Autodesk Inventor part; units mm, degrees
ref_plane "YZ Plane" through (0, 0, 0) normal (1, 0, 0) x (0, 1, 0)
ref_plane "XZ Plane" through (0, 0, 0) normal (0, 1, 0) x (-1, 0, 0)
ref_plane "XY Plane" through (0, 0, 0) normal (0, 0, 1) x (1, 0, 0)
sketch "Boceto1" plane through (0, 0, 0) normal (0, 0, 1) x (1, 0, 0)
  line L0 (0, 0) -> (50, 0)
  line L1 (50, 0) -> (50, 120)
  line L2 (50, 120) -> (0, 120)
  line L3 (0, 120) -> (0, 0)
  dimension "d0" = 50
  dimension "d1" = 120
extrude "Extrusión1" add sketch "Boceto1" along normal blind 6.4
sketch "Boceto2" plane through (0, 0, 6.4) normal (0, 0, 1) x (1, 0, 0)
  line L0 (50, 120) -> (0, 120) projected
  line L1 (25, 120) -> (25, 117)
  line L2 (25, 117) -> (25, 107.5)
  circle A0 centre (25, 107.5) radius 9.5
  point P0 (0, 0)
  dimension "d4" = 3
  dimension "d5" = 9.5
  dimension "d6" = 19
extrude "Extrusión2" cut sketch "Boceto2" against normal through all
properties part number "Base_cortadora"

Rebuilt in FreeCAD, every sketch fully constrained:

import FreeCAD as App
import Part
import Sketcher

V = App.Vector

doc = App.newDocument("Part")
params = doc.addObject("Spreadsheet::Sheet", "Params")
for row, (alias, value) in enumerate([
    ("sketch1_width", "50 mm"),
    ("sketch1_height", "120 mm"),
    ("pad1_length", "6.4 mm"),
    ("sketch2_diameter", "19 mm"),
], start=1):
    params.set(f"A{row}", alias)
    params.set(f"B{row}", "=" + value)
    params.setAlias(f"B{row}", alias)

body = doc.addObject("PartDesign::Body", "Body")

# Sketch on XY plane
sketch1 = body.newObject("Sketcher::SketchObject", "Sketch")
sketch1.AttachmentSupport = (doc.getObject("XY_Plane"), [""])
sketch1.MapMode = "FlatFace"
sketch1.addGeometry([
    Part.LineSegment(V(0, 120, 0), V(0, 0, 0)),
    Part.LineSegment(V(0, 0, 0), V(50, 0, 0)),
    Part.LineSegment(V(50, 0, 0), V(50, 120, 0)),
    Part.LineSegment(V(50, 120, 0), V(0, 120, 0)),
], False)
sketch1.addConstraint([
    Sketcher.Constraint("Coincident", 0, 2, 1, 1),
    Sketcher.Constraint("Coincident", 1, 2, 2, 1),
    Sketcher.Constraint("Coincident", 2, 2, 3, 1),
    Sketcher.Constraint("Coincident", 3, 2, 0, 1),
    Sketcher.Constraint("Vertical", 0),
    Sketcher.Constraint("Horizontal", 1),
    Sketcher.Constraint("Vertical", 2),
    Sketcher.Constraint("Horizontal", 3),
    Sketcher.Constraint("Coincident", 0, 2, -1, 1),
    Sketcher.Constraint("DistanceX", 1, 1, 1, 2, 50.0),
    Sketcher.Constraint("DistanceY", 0, 2, 0, 1, 120.0),
])
sketch1.setExpression("Constraints[9]", "Params.sketch1_width")
sketch1.setExpression("Constraints[10]", "Params.sketch1_height")
pad1 = body.newObject("PartDesign::Pad", "Pad")
pad1.Profile = sketch1
pad1.setExpression("Length", "Params.pad1_length")

# Sketch on XY plane
sketch2 = body.newObject("Sketcher::SketchObject", "Sketch001")
sketch2.AttachmentSupport = (doc.getObject("XY_Plane"), [""])
sketch2.MapMode = "FlatFace"
sketch2.AttachmentOffset = App.Placement(V(0, 0, 6.4), App.Rotation())
sketch2.addGeometry(Part.Circle(V(25, 108, 0), V(0, 0, 1), 10), False)
sketch2.addConstraint([
    Sketcher.Constraint("Diameter", 0, 19.0),
    Sketcher.Constraint("DistanceX", -1, 1, 0, 3, 25.0),
    Sketcher.Constraint("DistanceY", -1, 1, 0, 3, 107.5),
])
sketch2.setExpression("Constraints[0]", "Params.sketch2_diameter")
pocket1 = body.newObject("PartDesign::Pocket", "Pocket")
pocket1.Profile = sketch2
pocket1.Type = "ThroughAll"

doc.recompute()
